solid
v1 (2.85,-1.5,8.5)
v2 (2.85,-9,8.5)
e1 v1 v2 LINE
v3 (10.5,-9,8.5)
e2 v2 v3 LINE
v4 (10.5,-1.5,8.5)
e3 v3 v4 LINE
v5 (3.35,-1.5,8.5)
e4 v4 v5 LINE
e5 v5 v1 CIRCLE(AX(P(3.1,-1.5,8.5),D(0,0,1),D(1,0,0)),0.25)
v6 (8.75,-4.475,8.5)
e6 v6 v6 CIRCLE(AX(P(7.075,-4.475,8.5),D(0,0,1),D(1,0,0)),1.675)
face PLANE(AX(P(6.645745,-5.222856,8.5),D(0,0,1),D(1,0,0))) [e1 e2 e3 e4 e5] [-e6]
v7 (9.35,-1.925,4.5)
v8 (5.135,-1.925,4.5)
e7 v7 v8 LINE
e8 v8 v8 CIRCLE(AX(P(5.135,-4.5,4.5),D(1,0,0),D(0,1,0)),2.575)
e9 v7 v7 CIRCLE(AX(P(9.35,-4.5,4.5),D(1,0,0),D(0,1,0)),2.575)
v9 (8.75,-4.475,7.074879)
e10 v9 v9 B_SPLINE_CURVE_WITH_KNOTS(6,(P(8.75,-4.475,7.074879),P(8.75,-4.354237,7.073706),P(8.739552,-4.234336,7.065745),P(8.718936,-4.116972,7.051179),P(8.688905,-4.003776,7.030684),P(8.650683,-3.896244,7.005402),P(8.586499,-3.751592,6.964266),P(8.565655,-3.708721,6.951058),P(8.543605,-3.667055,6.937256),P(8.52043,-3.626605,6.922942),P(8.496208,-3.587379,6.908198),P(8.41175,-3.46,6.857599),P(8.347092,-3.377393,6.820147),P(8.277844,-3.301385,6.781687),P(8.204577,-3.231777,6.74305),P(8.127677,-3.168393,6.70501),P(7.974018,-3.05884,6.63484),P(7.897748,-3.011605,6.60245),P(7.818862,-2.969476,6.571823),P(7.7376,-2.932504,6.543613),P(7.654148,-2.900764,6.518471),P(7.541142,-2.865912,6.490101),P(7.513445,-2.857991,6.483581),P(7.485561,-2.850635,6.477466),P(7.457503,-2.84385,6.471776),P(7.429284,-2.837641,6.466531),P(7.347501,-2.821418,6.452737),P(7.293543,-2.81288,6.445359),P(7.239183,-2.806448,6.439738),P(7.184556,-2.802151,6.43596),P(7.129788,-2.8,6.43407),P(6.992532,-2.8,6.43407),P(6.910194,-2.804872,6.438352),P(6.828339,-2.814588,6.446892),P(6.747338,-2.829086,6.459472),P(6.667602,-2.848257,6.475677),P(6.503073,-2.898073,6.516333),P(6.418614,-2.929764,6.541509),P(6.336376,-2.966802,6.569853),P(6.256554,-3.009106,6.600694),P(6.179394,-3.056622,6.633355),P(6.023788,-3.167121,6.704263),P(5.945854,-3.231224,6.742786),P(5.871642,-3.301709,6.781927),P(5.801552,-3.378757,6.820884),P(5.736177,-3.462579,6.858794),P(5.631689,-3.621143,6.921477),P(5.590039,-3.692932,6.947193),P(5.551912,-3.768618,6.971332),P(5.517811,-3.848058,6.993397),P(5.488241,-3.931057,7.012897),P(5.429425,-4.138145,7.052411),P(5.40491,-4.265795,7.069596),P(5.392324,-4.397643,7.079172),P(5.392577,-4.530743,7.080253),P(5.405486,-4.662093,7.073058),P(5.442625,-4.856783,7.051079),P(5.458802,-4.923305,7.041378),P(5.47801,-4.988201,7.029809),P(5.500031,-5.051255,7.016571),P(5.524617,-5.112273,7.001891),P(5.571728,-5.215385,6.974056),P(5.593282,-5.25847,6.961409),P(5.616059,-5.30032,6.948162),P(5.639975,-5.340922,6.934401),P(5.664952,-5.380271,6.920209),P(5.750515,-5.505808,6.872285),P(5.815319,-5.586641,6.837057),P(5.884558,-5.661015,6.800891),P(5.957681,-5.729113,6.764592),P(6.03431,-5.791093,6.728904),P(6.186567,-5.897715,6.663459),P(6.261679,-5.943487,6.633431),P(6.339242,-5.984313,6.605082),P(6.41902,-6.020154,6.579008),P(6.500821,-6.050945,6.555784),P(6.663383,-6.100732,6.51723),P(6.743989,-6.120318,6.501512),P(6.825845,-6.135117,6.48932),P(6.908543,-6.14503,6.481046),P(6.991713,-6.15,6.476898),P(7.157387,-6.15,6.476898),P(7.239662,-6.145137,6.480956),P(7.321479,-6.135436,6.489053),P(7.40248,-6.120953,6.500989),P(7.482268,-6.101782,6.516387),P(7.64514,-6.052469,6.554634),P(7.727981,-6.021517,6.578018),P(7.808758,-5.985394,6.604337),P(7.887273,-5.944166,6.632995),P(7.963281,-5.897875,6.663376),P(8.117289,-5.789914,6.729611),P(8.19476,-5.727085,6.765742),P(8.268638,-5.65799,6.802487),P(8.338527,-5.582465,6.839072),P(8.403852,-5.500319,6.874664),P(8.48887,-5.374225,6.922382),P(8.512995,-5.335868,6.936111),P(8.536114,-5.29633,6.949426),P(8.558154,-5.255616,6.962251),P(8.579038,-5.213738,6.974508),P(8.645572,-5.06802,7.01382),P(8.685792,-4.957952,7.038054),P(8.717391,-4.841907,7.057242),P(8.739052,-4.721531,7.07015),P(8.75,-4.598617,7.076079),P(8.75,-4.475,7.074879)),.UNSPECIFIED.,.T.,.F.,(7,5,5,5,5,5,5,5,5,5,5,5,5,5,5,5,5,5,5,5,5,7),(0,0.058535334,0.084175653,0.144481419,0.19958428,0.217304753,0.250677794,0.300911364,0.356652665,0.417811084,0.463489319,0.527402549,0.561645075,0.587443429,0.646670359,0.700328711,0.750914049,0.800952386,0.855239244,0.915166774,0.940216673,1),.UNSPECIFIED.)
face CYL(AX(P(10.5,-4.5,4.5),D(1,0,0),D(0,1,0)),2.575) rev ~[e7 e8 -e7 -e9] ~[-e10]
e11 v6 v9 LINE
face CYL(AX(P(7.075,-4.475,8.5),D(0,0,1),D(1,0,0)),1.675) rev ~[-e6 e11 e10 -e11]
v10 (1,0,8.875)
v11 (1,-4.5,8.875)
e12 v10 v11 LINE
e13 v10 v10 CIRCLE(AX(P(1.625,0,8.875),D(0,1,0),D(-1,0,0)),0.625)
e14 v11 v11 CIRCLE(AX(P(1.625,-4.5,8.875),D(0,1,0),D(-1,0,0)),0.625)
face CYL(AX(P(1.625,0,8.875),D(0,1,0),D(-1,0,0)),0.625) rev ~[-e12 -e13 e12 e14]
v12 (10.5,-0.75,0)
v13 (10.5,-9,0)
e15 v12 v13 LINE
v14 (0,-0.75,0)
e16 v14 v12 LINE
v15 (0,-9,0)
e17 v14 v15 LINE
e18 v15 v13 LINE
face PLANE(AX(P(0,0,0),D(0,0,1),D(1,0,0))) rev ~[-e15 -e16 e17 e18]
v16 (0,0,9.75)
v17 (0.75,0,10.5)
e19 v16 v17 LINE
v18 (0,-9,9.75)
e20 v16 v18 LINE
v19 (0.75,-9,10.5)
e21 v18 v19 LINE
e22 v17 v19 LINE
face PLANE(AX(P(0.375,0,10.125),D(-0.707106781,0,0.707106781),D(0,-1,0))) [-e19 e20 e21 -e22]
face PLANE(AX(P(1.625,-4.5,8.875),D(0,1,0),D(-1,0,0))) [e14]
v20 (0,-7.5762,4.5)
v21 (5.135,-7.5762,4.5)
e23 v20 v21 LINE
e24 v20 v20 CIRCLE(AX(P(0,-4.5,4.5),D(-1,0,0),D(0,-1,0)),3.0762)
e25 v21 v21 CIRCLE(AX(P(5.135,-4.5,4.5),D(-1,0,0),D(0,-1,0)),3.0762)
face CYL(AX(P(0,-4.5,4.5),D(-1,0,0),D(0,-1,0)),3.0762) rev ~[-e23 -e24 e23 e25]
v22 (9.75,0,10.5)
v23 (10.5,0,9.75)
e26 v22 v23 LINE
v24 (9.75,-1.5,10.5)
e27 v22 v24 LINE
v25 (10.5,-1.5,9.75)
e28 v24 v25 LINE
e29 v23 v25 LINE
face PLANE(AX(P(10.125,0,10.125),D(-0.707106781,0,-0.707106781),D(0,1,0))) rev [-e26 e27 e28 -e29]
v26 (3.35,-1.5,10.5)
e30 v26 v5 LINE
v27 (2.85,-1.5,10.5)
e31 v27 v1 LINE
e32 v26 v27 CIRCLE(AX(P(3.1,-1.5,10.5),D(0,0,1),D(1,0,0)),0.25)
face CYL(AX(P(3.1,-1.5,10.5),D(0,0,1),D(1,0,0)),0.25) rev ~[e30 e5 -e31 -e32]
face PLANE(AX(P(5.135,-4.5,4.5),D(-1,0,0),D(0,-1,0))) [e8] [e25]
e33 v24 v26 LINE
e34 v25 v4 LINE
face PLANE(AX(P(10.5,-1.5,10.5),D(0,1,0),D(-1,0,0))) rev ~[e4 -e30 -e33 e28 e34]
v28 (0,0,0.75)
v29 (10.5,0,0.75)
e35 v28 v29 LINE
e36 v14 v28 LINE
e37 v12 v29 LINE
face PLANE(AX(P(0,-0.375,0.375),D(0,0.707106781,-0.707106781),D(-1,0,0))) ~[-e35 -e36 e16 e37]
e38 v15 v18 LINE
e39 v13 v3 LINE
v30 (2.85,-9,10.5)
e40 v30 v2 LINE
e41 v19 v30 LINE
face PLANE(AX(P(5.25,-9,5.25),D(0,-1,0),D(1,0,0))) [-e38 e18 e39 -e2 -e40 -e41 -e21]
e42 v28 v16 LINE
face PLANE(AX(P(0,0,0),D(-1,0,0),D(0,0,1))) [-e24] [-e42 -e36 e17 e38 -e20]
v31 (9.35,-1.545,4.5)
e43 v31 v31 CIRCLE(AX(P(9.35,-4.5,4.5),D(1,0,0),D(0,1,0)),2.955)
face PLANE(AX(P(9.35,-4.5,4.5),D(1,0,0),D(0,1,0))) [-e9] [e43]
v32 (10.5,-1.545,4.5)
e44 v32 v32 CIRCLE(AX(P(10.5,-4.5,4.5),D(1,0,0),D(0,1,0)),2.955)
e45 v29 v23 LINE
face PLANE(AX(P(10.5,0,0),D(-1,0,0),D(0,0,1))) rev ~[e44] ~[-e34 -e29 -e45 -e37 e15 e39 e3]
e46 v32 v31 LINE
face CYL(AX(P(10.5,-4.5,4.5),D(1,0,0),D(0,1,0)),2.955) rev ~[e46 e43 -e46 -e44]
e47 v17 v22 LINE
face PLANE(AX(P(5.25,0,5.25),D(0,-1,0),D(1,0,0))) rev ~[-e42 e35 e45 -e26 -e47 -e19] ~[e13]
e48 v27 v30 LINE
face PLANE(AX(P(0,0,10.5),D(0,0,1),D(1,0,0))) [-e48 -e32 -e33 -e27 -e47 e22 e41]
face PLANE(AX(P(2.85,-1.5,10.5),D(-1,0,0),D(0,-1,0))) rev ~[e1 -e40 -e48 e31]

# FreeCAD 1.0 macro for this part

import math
import FreeCAD as App
import Part
import Sketcher
from FreeCAD import Vector


def edges_at(feature, points):
    """Names of the edges that pass closest to the given points."""
    edges = feature.Shape.Edges
    near = lambda p: min(range(len(edges)), key=lambda i: edges[i].distToShape(Part.Vertex(*p))[0])
    return sorted({f"Edge{near(p) + 1}" for p in points})

doc = App.newDocument("Part")
body = doc.addObject("PartDesign::Body", "Body")

sketch1 = body.newObject("Sketcher::SketchObject", "Sketch")
sketch1.AttachmentSupport = (doc.getObject("XZ_Plane"), [""])
sketch1.MapMode = "FlatFace"
sketch1.addGeometry(Part.LineSegment(Vector(0, 10, 0), Vector(0, 0, 0)), False)
sketch1.addGeometry(Part.LineSegment(Vector(0, 0, 0), Vector(10, 0, 0)), False)
sketch1.addGeometry(Part.LineSegment(Vector(10, 0, 0), Vector(10, 10, 0)), False)
sketch1.addGeometry(Part.LineSegment(Vector(10, 10, 0), Vector(0, 10, 0)), False)
sketch1.addConstraint(Sketcher.Constraint("Coincident", 0, 2, 1, 1))
sketch1.addConstraint(Sketcher.Constraint("Coincident", 1, 2, 2, 1))
sketch1.addConstraint(Sketcher.Constraint("Coincident", 2, 2, 3, 1))
sketch1.addConstraint(Sketcher.Constraint("Coincident", 3, 2, 0, 1))
sketch1.addConstraint(Sketcher.Constraint("Vertical", 0))
sketch1.addConstraint(Sketcher.Constraint("Horizontal", 1))
sketch1.addConstraint(Sketcher.Constraint("Vertical", 2))
sketch1.addConstraint(Sketcher.Constraint("Horizontal", 3))
sketch1.addConstraint(Sketcher.Constraint("Coincident", 0, 2, -1, 1))
sketch1.addConstraint(Sketcher.Constraint("Equal", 3, 0))
sketch1.addConstraint(Sketcher.Constraint("DistanceX", 1, 1, 1, 2, 10.5))
pad1 = body.newObject("PartDesign::Pad", "Pad")
pad1.Profile = sketch1
pad1.Length = 9

sketch2 = body.newObject("Sketcher::SketchObject", "Sketch001")
sketch2.AttachmentSupport = (doc.getObject("YZ_Plane"), [""])
sketch2.MapMode = "FlatFace"
sketch2.addGeometry(Part.Circle(Vector(-4.5, 4.5, 0), Vector(0, 0, 1), 3.1), False)
sketch2.addConstraint(Sketcher.Constraint("Diameter", 0, 6.1524))
sketch2.addConstraint(Sketcher.Constraint("DistanceX", 0, 3, -1, 1, 4.5))
sketch2.addConstraint(Sketcher.Constraint("DistanceY", -1, 1, 0, 3, 4.5))
pocket1 = body.newObject("PartDesign::Pocket", "Pocket")
pocket1.Profile = sketch2
pocket1.Length = 5.135
pocket1.Reversed = True

sketch3 = body.newObject("Sketcher::SketchObject", "Sketch002")
sketch3.AttachmentSupport = (doc.getObject("YZ_Plane"), [""])
sketch3.MapMode = "FlatFace"
sketch3.AttachmentOffset = App.Placement(Vector(0, 0, 10.5), App.Rotation())
sketch3.addGeometry(Part.Circle(Vector(-4.5, 4.5, 0), Vector(0, 0, 1), 2.6), False)
sketch3.addConstraint(Sketcher.Constraint("Diameter", 0, 5.15))
sketch3.addConstraint(Sketcher.Constraint("DistanceX", 0, 3, -1, 1, 4.5))
sketch3.addConstraint(Sketcher.Constraint("DistanceY", -1, 1, 0, 3, 4.5))
pocket2 = body.newObject("PartDesign::Pocket", "Pocket001")
pocket2.Profile = sketch3
pocket2.Length = 25.4

sketch4 = body.newObject("Sketcher::SketchObject", "Sketch003")
sketch4.AttachmentSupport = (doc.getObject("XY_Plane"), [""])
sketch4.MapMode = "FlatFace"
sketch4.AttachmentOffset = App.Placement(Vector(0, 0, 10.5), App.Rotation())
sketch4.addGeometry(Part.LineSegment(Vector(2.85, -9, 0), Vector(10.5, -9, 0)), False)
sketch4.addGeometry(Part.LineSegment(Vector(10.5, -9, 0), Vector(10.5, -1.5, 0)), False)
sketch4.addGeometry(Part.LineSegment(Vector(10.5, -1.5, 0), Vector(3.35, -1.5, 0)), False)
sketch4.addGeometry(Part.ArcOfCircle(Part.Circle(Vector(3.1, -1.5, 0), Vector(0, 0, 1), 0.25), math.radians(0), math.radians(180)), False)
sketch4.addGeometry(Part.LineSegment(Vector(2.85, -1.5, 0), Vector(2.85, -9, 0)), False)
sketch4.addConstraint(Sketcher.Constraint("Coincident", 0, 2, 1, 1))
sketch4.addConstraint(Sketcher.Constraint("Coincident", 1, 2, 2, 1))
sketch4.addConstraint(Sketcher.Constraint("Coincident", 2, 2, 3, 1))
sketch4.addConstraint(Sketcher.Constraint("Tangent", 3, 2, 4, 1))
sketch4.addConstraint(Sketcher.Constraint("Coincident", 4, 2, 0, 1))
sketch4.addConstraint(Sketcher.Constraint("Horizontal", 0))
sketch4.addConstraint(Sketcher.Constraint("Vertical", 1))
sketch4.addConstraint(Sketcher.Constraint("Horizontal", 2))
sketch4.addConstraint(Sketcher.Constraint("Vertical", 4))
sketch4.addConstraint(Sketcher.Constraint("Horizontal", 3, 3, 1, 2))
sketch4.addConstraint(Sketcher.Constraint("Radius", 3, 0.25))
sketch4.addConstraint(Sketcher.Constraint("DistanceY", 1, 1, 1, 2, 7.5))
sketch4.addConstraint(Sketcher.Constraint("DistanceY", 0, 2, -1, 1, 9.0))
sketch4.addConstraint(Sketcher.Constraint("DistanceX", 0, 1, 0, 2, 7.65))
sketch4.addConstraint(Sketcher.Constraint("DistanceX", -1, 1, 3, 3, 3.1))
pocket3 = body.newObject("PartDesign::Pocket", "Pocket002")
pocket3.Profile = sketch4
pocket3.Length = 2

sketch5 = body.newObject("Sketcher::SketchObject", "Sketch004")
sketch5.AttachmentSupport = (doc.getObject("XY_Plane"), [""])
sketch5.MapMode = "FlatFace"
sketch5.AttachmentOffset = App.Placement(Vector(0, 0, 8.5), App.Rotation())
sketch5.addGeometry(Part.Circle(Vector(7.1, -4.5, 0), Vector(0, 0, 1), 1.7), False)
sketch5.addConstraint(Sketcher.Constraint("Diameter", 0, 3.35))
sketch5.addConstraint(Sketcher.Constraint("DistanceX", -1, 1, 0, 3, 7.075))
sketch5.addConstraint(Sketcher.Constraint("DistanceY", 0, 3, -1, 1, 4.475))
pocket4 = body.newObject("PartDesign::Pocket", "Pocket003")
pocket4.Profile = sketch5
pocket4.Length = 3
doc.recompute()

chamfer = body.newObject("PartDesign::Chamfer", "Chamfer")
chamfer.Base = (pocket4, edges_at(pocket4, [(0, -4.5, 10.5), (5.25, 0, 0), (10.5, -0.75, 10.5)]))
chamfer.Size = 0.75

sketch6 = body.newObject("Sketcher::SketchObject", "Sketch005")
sketch6.AttachmentSupport = (doc.getObject("XZ_Plane"), [""])
sketch6.MapMode = "FlatFace"
sketch6.addGeometry(Part.Circle(Vector(1.6, 8.9, 0), Vector(0, 0, 1), 0.6), False)
sketch6.addConstraint(Sketcher.Constraint("Diameter", 0, 1.25))
sketch6.addConstraint(Sketcher.Constraint("DistanceX", -1, 1, 0, 3, 1.625))
sketch6.addConstraint(Sketcher.Constraint("DistanceY", -1, 1, 0, 3, 8.875))
pocket5 = body.newObject("PartDesign::Pocket", "Pocket004")
pocket5.Profile = sketch6
pocket5.Length = 4.5
pocket5.Reversed = True

sketch7 = body.newObject("Sketcher::SketchObject", "Sketch006")
sketch7.AttachmentSupport = (doc.getObject("YZ_Plane"), [""])
sketch7.MapMode = "FlatFace"
sketch7.AttachmentOffset = App.Placement(Vector(0, 0, 10.5), App.Rotation())
sketch7.addGeometry(Part.Circle(Vector(-4.5, 4.5, 0), Vector(0, 0, 1), 3), False)
sketch7.addConstraint(Sketcher.Constraint("Diameter", 0, 5.91))
sketch7.addConstraint(Sketcher.Constraint("DistanceX", 0, 3, -1, 1, 4.5))
sketch7.addConstraint(Sketcher.Constraint("DistanceY", -1, 1, 0, 3, 4.5))
pocket6 = body.newObject("PartDesign::Pocket", "Pocket005")
pocket6.Profile = sketch7
pocket6.Length = 1.15

doc.recompute()
